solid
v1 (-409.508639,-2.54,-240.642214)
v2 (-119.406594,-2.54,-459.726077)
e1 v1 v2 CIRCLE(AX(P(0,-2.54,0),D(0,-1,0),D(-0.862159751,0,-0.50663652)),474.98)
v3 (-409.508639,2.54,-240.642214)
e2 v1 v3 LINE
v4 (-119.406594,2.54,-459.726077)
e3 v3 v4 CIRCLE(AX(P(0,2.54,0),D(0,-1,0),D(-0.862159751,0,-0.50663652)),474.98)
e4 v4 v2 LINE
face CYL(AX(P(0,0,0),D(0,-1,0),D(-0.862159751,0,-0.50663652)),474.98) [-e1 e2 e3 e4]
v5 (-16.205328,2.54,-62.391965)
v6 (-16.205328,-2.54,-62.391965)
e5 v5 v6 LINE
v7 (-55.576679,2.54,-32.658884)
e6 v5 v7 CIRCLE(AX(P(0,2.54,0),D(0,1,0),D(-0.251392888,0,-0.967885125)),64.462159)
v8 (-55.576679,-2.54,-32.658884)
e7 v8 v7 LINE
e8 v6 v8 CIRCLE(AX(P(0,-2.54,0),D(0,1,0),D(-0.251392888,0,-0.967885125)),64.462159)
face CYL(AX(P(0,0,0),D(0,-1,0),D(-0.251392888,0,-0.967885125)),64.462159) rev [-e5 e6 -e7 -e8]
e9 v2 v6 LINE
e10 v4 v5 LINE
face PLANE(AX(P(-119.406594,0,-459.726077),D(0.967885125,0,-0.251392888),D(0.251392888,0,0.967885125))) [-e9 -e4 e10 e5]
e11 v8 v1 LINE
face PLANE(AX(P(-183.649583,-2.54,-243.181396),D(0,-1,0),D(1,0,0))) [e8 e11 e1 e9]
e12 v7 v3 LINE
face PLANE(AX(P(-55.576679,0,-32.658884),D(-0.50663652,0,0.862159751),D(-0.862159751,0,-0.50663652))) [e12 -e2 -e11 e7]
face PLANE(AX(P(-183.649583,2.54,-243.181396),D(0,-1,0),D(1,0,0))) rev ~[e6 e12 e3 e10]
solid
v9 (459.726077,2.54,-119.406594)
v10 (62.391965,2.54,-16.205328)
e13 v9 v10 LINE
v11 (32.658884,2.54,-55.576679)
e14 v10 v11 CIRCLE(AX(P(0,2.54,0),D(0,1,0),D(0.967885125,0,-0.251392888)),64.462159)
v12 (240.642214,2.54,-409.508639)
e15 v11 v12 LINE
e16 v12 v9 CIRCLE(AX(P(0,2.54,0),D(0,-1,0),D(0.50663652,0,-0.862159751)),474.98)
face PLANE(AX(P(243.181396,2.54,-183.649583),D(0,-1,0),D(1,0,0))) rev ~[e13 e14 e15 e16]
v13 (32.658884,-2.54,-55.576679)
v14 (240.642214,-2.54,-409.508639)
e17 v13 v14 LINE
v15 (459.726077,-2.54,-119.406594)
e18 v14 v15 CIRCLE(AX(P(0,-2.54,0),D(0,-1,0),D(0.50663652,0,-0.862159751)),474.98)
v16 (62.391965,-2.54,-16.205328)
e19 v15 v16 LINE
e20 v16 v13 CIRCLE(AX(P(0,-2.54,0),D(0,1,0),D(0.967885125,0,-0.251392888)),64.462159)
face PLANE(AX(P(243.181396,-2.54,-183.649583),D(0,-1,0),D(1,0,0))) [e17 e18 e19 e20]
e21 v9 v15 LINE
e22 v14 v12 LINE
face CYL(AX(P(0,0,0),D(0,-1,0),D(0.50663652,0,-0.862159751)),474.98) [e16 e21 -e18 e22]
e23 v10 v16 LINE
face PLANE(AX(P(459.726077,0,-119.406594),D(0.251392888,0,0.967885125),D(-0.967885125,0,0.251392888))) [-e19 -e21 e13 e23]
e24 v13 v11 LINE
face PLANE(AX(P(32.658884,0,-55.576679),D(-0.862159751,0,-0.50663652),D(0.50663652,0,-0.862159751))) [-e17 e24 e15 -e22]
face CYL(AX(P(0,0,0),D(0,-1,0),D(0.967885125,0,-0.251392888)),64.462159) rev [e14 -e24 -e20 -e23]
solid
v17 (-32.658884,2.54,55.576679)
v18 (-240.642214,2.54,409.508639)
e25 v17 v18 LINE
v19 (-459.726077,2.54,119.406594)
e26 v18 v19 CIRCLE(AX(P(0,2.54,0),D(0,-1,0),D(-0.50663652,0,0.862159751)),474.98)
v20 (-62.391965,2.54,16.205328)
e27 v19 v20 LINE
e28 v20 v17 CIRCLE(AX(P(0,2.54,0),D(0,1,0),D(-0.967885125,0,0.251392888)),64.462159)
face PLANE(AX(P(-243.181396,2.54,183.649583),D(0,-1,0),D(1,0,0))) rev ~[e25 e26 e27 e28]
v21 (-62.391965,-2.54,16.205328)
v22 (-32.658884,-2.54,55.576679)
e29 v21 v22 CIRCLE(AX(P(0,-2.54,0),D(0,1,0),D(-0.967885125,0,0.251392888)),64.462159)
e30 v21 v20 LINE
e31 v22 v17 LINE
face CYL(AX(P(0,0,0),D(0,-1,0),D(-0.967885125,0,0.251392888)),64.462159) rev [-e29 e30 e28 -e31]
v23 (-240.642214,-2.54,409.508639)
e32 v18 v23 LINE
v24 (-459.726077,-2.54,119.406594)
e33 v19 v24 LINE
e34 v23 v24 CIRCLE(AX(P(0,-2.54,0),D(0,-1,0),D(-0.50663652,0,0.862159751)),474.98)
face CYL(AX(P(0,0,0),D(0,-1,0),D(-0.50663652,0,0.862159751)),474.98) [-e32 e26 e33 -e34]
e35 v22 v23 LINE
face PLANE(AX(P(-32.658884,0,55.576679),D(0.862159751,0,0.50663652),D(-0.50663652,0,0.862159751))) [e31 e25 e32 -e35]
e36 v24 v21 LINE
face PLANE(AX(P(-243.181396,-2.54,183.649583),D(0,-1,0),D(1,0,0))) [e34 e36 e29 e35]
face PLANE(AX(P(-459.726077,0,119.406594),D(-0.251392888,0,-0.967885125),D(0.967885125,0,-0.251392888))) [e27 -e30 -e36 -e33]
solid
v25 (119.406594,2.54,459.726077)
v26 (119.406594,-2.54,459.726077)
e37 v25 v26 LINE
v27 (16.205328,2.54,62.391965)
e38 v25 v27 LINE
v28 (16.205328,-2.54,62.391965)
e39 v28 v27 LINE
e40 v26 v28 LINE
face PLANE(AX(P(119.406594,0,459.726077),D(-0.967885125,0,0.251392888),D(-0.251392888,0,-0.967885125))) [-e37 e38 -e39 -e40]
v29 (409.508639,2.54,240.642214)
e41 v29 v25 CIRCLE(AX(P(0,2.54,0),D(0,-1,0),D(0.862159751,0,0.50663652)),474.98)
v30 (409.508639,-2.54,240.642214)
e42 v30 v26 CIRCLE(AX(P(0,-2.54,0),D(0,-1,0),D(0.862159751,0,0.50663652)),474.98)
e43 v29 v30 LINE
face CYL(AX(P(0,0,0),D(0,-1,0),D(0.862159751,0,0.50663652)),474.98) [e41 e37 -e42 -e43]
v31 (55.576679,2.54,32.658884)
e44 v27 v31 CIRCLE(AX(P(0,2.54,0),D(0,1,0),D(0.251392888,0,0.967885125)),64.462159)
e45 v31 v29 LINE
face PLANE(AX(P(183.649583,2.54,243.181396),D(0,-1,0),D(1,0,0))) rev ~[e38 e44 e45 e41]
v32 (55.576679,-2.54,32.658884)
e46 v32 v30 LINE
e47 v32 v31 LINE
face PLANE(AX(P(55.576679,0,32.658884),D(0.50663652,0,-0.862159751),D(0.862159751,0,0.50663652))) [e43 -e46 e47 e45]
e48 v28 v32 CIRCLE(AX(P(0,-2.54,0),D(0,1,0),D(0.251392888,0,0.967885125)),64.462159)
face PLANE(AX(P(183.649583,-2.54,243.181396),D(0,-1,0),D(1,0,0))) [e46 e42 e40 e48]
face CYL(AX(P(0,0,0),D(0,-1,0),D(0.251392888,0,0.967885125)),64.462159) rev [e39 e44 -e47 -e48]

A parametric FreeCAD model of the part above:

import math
import FreeCAD as App
import Part
import Sketcher
from FreeCAD import Vector
Q = App.Units.Quantity

doc = App.newDocument("Part")
body = doc.addObject("PartDesign::Body", "Body")

sketch1 = body.newObject("Sketcher::SketchObject", "Sketch")
sketch1.AttachmentSupport = (doc.getObject("XZ_Plane"), [""])
sketch1.MapMode = "FlatFace"
sketch1.addGeometry([
    Part.LineSegment(Vector(56, 33, 0), Vector(410, 241, 0)),
    Part.ArcOfCircle(Part.Circle(Vector(0, 0, 0), Vector(0, 0, 1), 475), math.radians(30), math.radians(75)),
    Part.LineSegment(Vector(119, 460, 0), Vector(16, 62, 0)),
    Part.ArcOfCircle(Part.Circle(Vector(0, 0, 0), Vector(0, 0, 1), 64), math.radians(30), math.radians(75)),
], False)
sketch1.addConstraint([
    Sketcher.Constraint("Coincident", 0, 2, 1, 1),
    Sketcher.Constraint("Coincident", 1, 2, 2, 1),
    Sketcher.Constraint("Coincident", 2, 2, 3, 2),
    Sketcher.Constraint("Coincident", 3, 1, 0, 1),
    Sketcher.Constraint("Coincident", 1, 3, -1, 1),
    Sketcher.Constraint("Coincident", 3, 3, -1, 1),
    Sketcher.Constraint("Radius", 1, Q("18.7 in")),
    Sketcher.Constraint("Radius", 3, 64.462159),
    Sketcher.Constraint("DistanceX", -1, 1, 0, 2, 409.508639),
    Sketcher.Constraint("DistanceX", -1, 1, 2, 2, 16.205328),
    Sketcher.Constraint("DistanceX", -1, 1, 3, 1, 55.576679),
    Sketcher.Constraint("DistanceY", 2, 2, 1, 2, 397.334112),
])
pad1 = body.newObject("PartDesign::Pad", "Pad")
pad1.Profile = sketch1
pad1.Length = Q("0.2 in")
pad1.Midplane = True
body2 = doc.addObject("PartDesign::Body", "Body001")

sketch2 = body2.newObject("Sketcher::SketchObject", "Sketch001")
sketch2.AttachmentSupport = (doc.getObject("XZ_Plane001"), [""])
sketch2.MapMode = "FlatFace"
sketch2.addGeometry([
    Part.LineSegment(Vector(-33, 56, 0), Vector(-241, 410, 0)),
    Part.ArcOfCircle(Part.Circle(Vector(0, 0, 0), Vector(0, 0, 1), 475), math.radians(120), math.radians(165)),
    Part.LineSegment(Vector(-460, 119, 0), Vector(-62, 16, 0)),
    Part.ArcOfCircle(Part.Circle(Vector(0, 0, 0), Vector(0, 0, 1), 64), math.radians(120), math.radians(165)),
], False)
sketch2.addConstraint([
    Sketcher.Constraint("Coincident", 0, 2, 1, 1),
    Sketcher.Constraint("Coincident", 1, 2, 2, 1),
    Sketcher.Constraint("Coincident", 2, 2, 3, 2),
    Sketcher.Constraint("Coincident", 3, 1, 0, 1),
    Sketcher.Constraint("Coincident", 1, 3, -1, 1),
    Sketcher.Constraint("Coincident", 3, 3, -1, 1),
    Sketcher.Constraint("Radius", 1, Q("18.7 in")),
    Sketcher.Constraint("Radius", 3, 64.462159),
    Sketcher.Constraint("DistanceY", -1, 1, 0, 2, 409.508639),
    Sketcher.Constraint("DistanceY", -1, 1, 2, 2, 16.205328),
    Sketcher.Constraint("DistanceY", -1, 1, 3, 1, 55.576679),
    Sketcher.Constraint("DistanceX", 1, 2, 2, 2, 397.334112),
])
pad2 = body2.newObject("PartDesign::Pad", "Pad001")
pad2.Profile = sketch2
pad2.Length = Q("0.2 in")
pad2.Midplane = True
body3 = doc.addObject("PartDesign::Body", "Body002")

sketch3 = body3.newObject("Sketcher::SketchObject", "Sketch002")
sketch3.AttachmentSupport = (doc.getObject("XZ_Plane002"), [""])
sketch3.MapMode = "FlatFace"
sketch3.addGeometry([
    Part.ArcOfCircle(Part.Circle(Vector(0, 0, 0), Vector(0, 0, 1), 475), math.radians(-150), math.radians(-105)),
    Part.LineSegment(Vector(-119, -460, 0), Vector(-16, -62, 0)),
    Part.ArcOfCircle(Part.Circle(Vector(0, 0, 0), Vector(0, 0, 1), 64), math.radians(-150), math.radians(-105)),
    Part.LineSegment(Vector(-56, -33, 0), Vector(-410, -241, 0)),
], False)
sketch3.addConstraint([
    Sketcher.Constraint("Coincident", 0, 2, 1, 1),
    Sketcher.Constraint("Coincident", 1, 2, 2, 2),
    Sketcher.Constraint("Coincident", 2, 1, 3, 1),
    Sketcher.Constraint("Coincident", 3, 2, 0, 1),
    Sketcher.Constraint("Coincident", 0, 3, -1, 1),
    Sketcher.Constraint("Coincident", 2, 3, -1, 1),
    Sketcher.Constraint("Radius", 0, Q("18.7 in")),
    Sketcher.Constraint("Radius", 2, 64.462159),
    Sketcher.Constraint("DistanceX", 1, 2, -1, 1, 16.205328),
    Sketcher.Constraint("DistanceX", 2, 1, -1, 1, 55.576679),
    Sketcher.Constraint("DistanceX", 3, 2, -1, 1, 409.508639),
    Sketcher.Constraint("DistanceY", 0, 2, 1, 2, 397.334112),
])
pad3 = body3.newObject("PartDesign::Pad", "Pad002")
pad3.Profile = sketch3
pad3.Length = Q("0.2 in")
pad3.Midplane = True
body4 = doc.addObject("PartDesign::Body", "Body003")

sketch4 = body4.newObject("Sketcher::SketchObject", "Sketch003")
sketch4.AttachmentSupport = (doc.getObject("XZ_Plane003"), [""])
sketch4.MapMode = "FlatFace"
sketch4.addGeometry([
    Part.ArcOfCircle(Part.Circle(Vector(0, 0, 0), Vector(0, 0, 1), 475), math.radians(-60), math.radians(-15)),
    Part.LineSegment(Vector(460, -119, 0), Vector(62, -16, 0)),
    Part.ArcOfCircle(Part.Circle(Vector(0, 0, 0), Vector(0, 0, 1), 64), math.radians(-60), math.radians(-15)),
    Part.LineSegment(Vector(33, -56, 0), Vector(241, -410, 0)),
], False)
sketch4.addConstraint([
    Sketcher.Constraint("Coincident", 0, 2, 1, 1),
    Sketcher.Constraint("Coincident", 1, 2, 2, 2),
    Sketcher.Constraint("Coincident", 2, 1, 3, 1),
    Sketcher.Constraint("Coincident", 3, 2, 0, 1),
    Sketcher.Constraint("Coincident", 0, 3, -1, 1),
    Sketcher.Constraint("Coincident", 2, 3, -1, 1),
    Sketcher.Constraint("Radius", 0, Q("18.7 in")),
    Sketcher.Constraint("Radius", 2, 64.462159),
    Sketcher.Constraint("DistanceY", 1, 2, -1, 1, 16.205328),
    Sketcher.Constraint("DistanceY", 2, 1, -1, 1, 55.576679),
    Sketcher.Constraint("DistanceY", 3, 2, -1, 1, 409.508639),
    Sketcher.Constraint("DistanceX", 1, 2, 0, 2, 397.334112),
])
pad4 = body4.newObject("PartDesign::Pad", "Pad003")
pad4.Profile = sketch4
pad4.Length = Q("0.2 in")
pad4.Midplane = True

doc.recompute()
